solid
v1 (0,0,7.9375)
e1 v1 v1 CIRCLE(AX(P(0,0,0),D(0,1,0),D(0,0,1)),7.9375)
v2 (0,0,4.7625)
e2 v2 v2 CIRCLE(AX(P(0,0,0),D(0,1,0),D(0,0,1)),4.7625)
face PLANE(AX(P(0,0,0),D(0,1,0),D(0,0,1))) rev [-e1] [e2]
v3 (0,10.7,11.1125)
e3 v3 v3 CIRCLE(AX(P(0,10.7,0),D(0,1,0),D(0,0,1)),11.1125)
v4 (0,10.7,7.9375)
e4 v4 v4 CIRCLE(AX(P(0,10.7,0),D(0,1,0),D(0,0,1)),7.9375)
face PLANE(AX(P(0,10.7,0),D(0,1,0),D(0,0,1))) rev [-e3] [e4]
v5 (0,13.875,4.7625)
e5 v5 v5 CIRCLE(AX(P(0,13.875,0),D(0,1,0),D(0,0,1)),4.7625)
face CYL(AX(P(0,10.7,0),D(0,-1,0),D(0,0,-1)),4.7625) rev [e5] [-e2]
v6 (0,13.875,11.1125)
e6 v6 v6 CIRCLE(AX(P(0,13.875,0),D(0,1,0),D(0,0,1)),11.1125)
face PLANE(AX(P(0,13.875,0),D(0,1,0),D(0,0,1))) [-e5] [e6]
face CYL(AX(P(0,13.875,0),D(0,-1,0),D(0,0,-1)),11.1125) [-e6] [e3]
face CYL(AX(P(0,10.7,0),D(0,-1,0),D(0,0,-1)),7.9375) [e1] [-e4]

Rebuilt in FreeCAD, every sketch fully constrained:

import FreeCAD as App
import Part
import Sketcher
Q = App.Units.Quantity

doc = App.newDocument("Part")
params = doc.addObject("Spreadsheet::Sheet", "Params")
for row, (alias, value) in enumerate([
    ("sketch1_diameter", "0.625 in"),
    ("sketch1_diameter2", "0.375 in"),
    ("pad1_length", "10.7 mm"),
    ("sketch2_diameter", "0.875 in"),
    ("sketch2_diameter2", "0.375 in"),
    ("pad2_length", "0.125 in"),
], start=1):
    params.set(f"A{row}", alias)
    params.set(f"B{row}", "=" + value)
    params.setAlias(f"B{row}", alias)

body = doc.addObject("PartDesign::Body", "Body")

# Sketch on XZ plane
sketch1 = body.newObject("Sketcher::SketchObject", "Sketch")
sketch1.AttachmentSupport = (doc.getObject("XZ_Plane"), [""])
sketch1.MapMode = "FlatFace"
sketch1.addGeometry([
    Part.Circle(App.Vector(0, 0, 0), App.Vector(0, 0, 1), 7.9375),
    Part.Circle(App.Vector(0, 0, 0), App.Vector(0, 0, 1), 4.7625),
], False)
sketch1.addConstraint([
    Sketcher.Constraint("Coincident", 0, 3, -1, 1),
    Sketcher.Constraint("Coincident", 1, 3, -1, 1),
    Sketcher.Constraint("Diameter", 0, Q("0.625 in")),
    Sketcher.Constraint("Diameter", 1, Q("0.375 in")),
])
sketch1.setExpression("Constraints[2]", "Params.sketch1_diameter")
sketch1.setExpression("Constraints[3]", "Params.sketch1_diameter2")
pad1 = body.newObject("PartDesign::Pad", "Pad")
pad1.Profile = sketch1
pad1.setExpression("Length", "Params.pad1_length")
pad1.Reversed = True

# Sketch on XZ plane
sketch2 = body.newObject("Sketcher::SketchObject", "Sketch001")
sketch2.AttachmentSupport = (doc.getObject("XZ_Plane"), [""])
sketch2.MapMode = "FlatFace"
sketch2.AttachmentOffset = App.Placement(App.Vector(0, 0, -10.7), App.Rotation())
sketch2.addGeometry([
    Part.Circle(App.Vector(0, 0, 0), App.Vector(0, 0, 1), 11.1125),
    Part.Circle(App.Vector(0, 0, 0), App.Vector(0, 0, 1), 4.7625),
], False)
sketch2.addConstraint([
    Sketcher.Constraint("Coincident", 0, 3, -1, 1),
    Sketcher.Constraint("Coincident", 1, 3, -1, 1),
    Sketcher.Constraint("Diameter", 0, Q("0.875 in")),
    Sketcher.Constraint("Diameter", 1, Q("0.375 in")),
])
sketch2.setExpression("Constraints[2]", "Params.sketch2_diameter")
sketch2.setExpression("Constraints[3]", "Params.sketch2_diameter2")
pad2 = body.newObject("PartDesign::Pad", "Pad001")
pad2.Profile = sketch2
pad2.setExpression("Length", "Params.pad2_length")
pad2.Reversed = True

doc.recompute()
